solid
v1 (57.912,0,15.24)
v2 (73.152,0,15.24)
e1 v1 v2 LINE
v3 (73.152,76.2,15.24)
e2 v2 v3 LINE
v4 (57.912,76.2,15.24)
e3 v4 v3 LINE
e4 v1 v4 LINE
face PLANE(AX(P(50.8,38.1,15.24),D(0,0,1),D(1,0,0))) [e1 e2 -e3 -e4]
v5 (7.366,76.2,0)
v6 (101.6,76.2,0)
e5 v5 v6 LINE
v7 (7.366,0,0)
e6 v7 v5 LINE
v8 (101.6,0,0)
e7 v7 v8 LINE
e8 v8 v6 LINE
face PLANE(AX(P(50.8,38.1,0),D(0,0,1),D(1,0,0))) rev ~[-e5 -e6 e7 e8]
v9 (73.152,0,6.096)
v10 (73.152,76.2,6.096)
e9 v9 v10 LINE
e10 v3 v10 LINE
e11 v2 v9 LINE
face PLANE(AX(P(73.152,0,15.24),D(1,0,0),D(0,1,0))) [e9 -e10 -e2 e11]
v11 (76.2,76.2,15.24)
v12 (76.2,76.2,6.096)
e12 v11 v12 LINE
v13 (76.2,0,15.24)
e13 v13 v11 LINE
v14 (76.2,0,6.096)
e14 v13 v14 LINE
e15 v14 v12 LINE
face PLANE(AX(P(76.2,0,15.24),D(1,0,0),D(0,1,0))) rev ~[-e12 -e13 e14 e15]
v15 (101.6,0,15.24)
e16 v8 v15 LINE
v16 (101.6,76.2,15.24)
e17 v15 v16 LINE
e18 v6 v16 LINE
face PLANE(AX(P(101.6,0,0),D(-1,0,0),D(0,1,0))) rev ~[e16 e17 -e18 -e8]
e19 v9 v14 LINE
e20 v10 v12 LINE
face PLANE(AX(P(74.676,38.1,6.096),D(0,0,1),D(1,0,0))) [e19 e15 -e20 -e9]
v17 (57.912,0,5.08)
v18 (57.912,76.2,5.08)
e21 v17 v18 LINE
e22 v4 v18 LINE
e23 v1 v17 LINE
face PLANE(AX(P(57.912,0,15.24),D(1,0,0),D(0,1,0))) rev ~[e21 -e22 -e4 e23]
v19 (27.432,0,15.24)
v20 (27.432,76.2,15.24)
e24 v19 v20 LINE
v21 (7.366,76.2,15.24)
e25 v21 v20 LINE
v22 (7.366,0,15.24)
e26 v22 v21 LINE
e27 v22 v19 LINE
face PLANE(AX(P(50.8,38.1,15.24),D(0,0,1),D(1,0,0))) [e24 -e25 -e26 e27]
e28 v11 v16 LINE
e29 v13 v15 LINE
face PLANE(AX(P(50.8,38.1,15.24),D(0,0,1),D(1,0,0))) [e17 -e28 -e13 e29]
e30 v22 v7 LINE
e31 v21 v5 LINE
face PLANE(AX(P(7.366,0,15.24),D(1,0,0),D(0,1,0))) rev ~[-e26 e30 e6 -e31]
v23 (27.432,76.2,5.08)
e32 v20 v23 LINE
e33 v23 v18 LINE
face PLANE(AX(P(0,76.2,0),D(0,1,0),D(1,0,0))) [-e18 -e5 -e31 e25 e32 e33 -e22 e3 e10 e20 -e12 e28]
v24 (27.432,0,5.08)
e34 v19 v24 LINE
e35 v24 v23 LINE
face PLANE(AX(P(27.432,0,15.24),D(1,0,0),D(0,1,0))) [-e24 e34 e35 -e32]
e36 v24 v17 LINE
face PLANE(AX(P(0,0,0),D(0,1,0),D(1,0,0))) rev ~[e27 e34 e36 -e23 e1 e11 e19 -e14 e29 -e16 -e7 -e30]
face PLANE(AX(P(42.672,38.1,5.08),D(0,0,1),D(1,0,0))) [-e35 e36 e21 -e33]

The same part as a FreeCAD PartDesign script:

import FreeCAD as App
import Part
import Sketcher

V = App.Vector
Q = App.Units.Quantity

doc = App.newDocument("Part")
body = doc.addObject("PartDesign::Body", "Body")

# Sketch on XY plane
sketch1 = body.newObject("Sketcher::SketchObject", "Sketch")
sketch1.AttachmentSupport = (doc.getObject("XY_Plane"), [""])
sketch1.MapMode = "FlatFace"
sketch1.addGeometry([
    Part.LineSegment(V(0, 76.2, 0), V(0, 0, 0)),
    Part.LineSegment(V(0, 0, 0), V(101.6, 0, 0)),
    Part.LineSegment(V(101.6, 0, 0), V(101.6, 76.2, 0)),
    Part.LineSegment(V(101.6, 76.2, 0), V(0, 76.2, 0)),
], False)
sketch1.addConstraint([
    Sketcher.Constraint("Coincident", 0, 2, 1, 1),
    Sketcher.Constraint("Coincident", 1, 2, 2, 1),
    Sketcher.Constraint("Coincident", 2, 2, 3, 1),
    Sketcher.Constraint("Coincident", 3, 2, 0, 1),
    Sketcher.Constraint("Vertical", 0),
    Sketcher.Constraint("Horizontal", 1),
    Sketcher.Constraint("Vertical", 2),
    Sketcher.Constraint("Horizontal", 3),
    Sketcher.Constraint("Coincident", 0, 2, -1, 1),
    Sketcher.Constraint("DistanceX", 1, 1, 1, 2, Q("4 in")),
    Sketcher.Constraint("DistanceY", 0, 2, 0, 1, Q("3 in")),
])
pad1 = body.newObject("PartDesign::Pad", "Pad")
pad1.Profile = sketch1
pad1.Length = Q("0.6 in")

# Sketch on XY plane
sketch2 = body.newObject("Sketcher::SketchObject", "Sketch001")
sketch2.AttachmentSupport = (doc.getObject("XY_Plane"), [""])
sketch2.MapMode = "FlatFace"
sketch2.AttachmentOffset = App.Placement(V(0, 0, 0.6 * 25.4), App.Rotation())
sketch2.addGeometry([
    Part.LineSegment(V(73.152, 76.2, 0), V(73.152, 0, 0)),
    Part.LineSegment(V(73.152, 0, 0), V(76.2, 0, 0)),
    Part.LineSegment(V(76.2, 0, 0), V(76.2, 76.2, 0)),
    Part.LineSegment(V(76.2, 76.2, 0), V(73.152, 76.2, 0)),
], False)
sketch2.addConstraint([
    Sketcher.Constraint("Coincident", 0, 2, 1, 1),
    Sketcher.Constraint("Coincident", 1, 2, 2, 1),
    Sketcher.Constraint("Coincident", 2, 2, 3, 1),
    Sketcher.Constraint("Coincident", 3, 2, 0, 1),
    Sketcher.Constraint("Vertical", 0),
    Sketcher.Constraint("Horizontal", 1),
    Sketcher.Constraint("Vertical", 2),
    Sketcher.Constraint("Horizontal", 3),
    Sketcher.Constraint("PointOnObject", 0, 2, -1),
    Sketcher.Constraint("DistanceY", 0, 2, 0, 1, Q("3 in")),
    Sketcher.Constraint("DistanceX", -1, 1, 1, 2, Q("3 in")),
    Sketcher.Constraint("DistanceX", 1, 1, 1, 2, Q("0.12 in")),
])
pocket1 = body.newObject("PartDesign::Pocket", "Pocket")
pocket1.Profile = sketch2
pocket1.Length = Q("0.36 in")

# Sketch on XY plane
sketch3 = body.newObject("Sketcher::SketchObject", "Sketch002")
sketch3.AttachmentSupport = (doc.getObject("XY_Plane"), [""])
sketch3.MapMode = "FlatFace"
sketch3.AttachmentOffset = App.Placement(V(0, 0, 0.6 * 25.4), App.Rotation())
sketch3.addGeometry([
    Part.LineSegment(V(27.432, 76.2, 0), V(27.432, 0, 0)),
    Part.LineSegment(V(27.432, 0, 0), V(57.912, 0, 0)),
    Part.LineSegment(V(57.912, 0, 0), V(57.912, 76.2, 0)),
    Part.LineSegment(V(57.912, 76.2, 0), V(27.432, 76.2, 0)),
], False)
sketch3.addConstraint([
    Sketcher.Constraint("Coincident", 0, 2, 1, 1),
    Sketcher.Constraint("Coincident", 1, 2, 2, 1),
    Sketcher.Constraint("Coincident", 2, 2, 3, 1),
    Sketcher.Constraint("Coincident", 3, 2, 0, 1),
    Sketcher.Constraint("Vertical", 0),
    Sketcher.Constraint("Horizontal", 1),
    Sketcher.Constraint("Vertical", 2),
    Sketcher.Constraint("Horizontal", 3),
    Sketcher.Constraint("PointOnObject", 0, 2, -1),
    Sketcher.Constraint("DistanceY", 0, 2, 0, 1, Q("3 in")),
    Sketcher.Constraint("DistanceX", 1, 1, 1, 2, Q("1.2 in")),
    Sketcher.Constraint("DistanceX", -1, 1, 0, 2, Q("1.08 in")),
])
pocket2 = body.newObject("PartDesign::Pocket", "Pocket001")
pocket2.Profile = sketch3
pocket2.Length = Q("0.4 in")

# Sketch on XY plane
sketch4 = body.newObject("Sketcher::SketchObject", "Sketch003")
sketch4.AttachmentSupport = (doc.getObject("XY_Plane"), [""])
sketch4.MapMode = "FlatFace"
sketch4.AttachmentOffset = App.Placement(V(0, 0, 0.6 * 25.4), App.Rotation())
sketch4.addGeometry([
    Part.LineSegment(V(0, 76.2, 0), V(0, 0, 0)),
    Part.LineSegment(V(0, 0, 0), V(7.366, 0, 0)),
    Part.LineSegment(V(7.366, 0, 0), V(7.366, 76.2, 0)),
    Part.LineSegment(V(7.366, 76.2, 0), V(0, 76.2, 0)),
], False)
sketch4.addConstraint([
    Sketcher.Constraint("Coincident", 0, 2, 1, 1),
    Sketcher.Constraint("Coincident", 1, 2, 2, 1),
    Sketcher.Constraint("Coincident", 2, 2, 3, 1),
    Sketcher.Constraint("Coincident", 3, 2, 0, 1),
    Sketcher.Constraint("Vertical", 0),
    Sketcher.Constraint("Horizontal", 1),
    Sketcher.Constraint("Vertical", 2),
    Sketcher.Constraint("Horizontal", 3),
    Sketcher.Constraint("Coincident", 0, 2, -1, 1),
    Sketcher.Constraint("DistanceY", 0, 2, 0, 1, Q("3 in")),
    Sketcher.Constraint("DistanceX", 1, 1, 1, 2, Q("0.29 in")),
])
pocket3 = body.newObject("PartDesign::Pocket", "Pocket002")
pocket3.Profile = sketch4
pocket3.Length = Q("0.7 in")

doc.recompute()
